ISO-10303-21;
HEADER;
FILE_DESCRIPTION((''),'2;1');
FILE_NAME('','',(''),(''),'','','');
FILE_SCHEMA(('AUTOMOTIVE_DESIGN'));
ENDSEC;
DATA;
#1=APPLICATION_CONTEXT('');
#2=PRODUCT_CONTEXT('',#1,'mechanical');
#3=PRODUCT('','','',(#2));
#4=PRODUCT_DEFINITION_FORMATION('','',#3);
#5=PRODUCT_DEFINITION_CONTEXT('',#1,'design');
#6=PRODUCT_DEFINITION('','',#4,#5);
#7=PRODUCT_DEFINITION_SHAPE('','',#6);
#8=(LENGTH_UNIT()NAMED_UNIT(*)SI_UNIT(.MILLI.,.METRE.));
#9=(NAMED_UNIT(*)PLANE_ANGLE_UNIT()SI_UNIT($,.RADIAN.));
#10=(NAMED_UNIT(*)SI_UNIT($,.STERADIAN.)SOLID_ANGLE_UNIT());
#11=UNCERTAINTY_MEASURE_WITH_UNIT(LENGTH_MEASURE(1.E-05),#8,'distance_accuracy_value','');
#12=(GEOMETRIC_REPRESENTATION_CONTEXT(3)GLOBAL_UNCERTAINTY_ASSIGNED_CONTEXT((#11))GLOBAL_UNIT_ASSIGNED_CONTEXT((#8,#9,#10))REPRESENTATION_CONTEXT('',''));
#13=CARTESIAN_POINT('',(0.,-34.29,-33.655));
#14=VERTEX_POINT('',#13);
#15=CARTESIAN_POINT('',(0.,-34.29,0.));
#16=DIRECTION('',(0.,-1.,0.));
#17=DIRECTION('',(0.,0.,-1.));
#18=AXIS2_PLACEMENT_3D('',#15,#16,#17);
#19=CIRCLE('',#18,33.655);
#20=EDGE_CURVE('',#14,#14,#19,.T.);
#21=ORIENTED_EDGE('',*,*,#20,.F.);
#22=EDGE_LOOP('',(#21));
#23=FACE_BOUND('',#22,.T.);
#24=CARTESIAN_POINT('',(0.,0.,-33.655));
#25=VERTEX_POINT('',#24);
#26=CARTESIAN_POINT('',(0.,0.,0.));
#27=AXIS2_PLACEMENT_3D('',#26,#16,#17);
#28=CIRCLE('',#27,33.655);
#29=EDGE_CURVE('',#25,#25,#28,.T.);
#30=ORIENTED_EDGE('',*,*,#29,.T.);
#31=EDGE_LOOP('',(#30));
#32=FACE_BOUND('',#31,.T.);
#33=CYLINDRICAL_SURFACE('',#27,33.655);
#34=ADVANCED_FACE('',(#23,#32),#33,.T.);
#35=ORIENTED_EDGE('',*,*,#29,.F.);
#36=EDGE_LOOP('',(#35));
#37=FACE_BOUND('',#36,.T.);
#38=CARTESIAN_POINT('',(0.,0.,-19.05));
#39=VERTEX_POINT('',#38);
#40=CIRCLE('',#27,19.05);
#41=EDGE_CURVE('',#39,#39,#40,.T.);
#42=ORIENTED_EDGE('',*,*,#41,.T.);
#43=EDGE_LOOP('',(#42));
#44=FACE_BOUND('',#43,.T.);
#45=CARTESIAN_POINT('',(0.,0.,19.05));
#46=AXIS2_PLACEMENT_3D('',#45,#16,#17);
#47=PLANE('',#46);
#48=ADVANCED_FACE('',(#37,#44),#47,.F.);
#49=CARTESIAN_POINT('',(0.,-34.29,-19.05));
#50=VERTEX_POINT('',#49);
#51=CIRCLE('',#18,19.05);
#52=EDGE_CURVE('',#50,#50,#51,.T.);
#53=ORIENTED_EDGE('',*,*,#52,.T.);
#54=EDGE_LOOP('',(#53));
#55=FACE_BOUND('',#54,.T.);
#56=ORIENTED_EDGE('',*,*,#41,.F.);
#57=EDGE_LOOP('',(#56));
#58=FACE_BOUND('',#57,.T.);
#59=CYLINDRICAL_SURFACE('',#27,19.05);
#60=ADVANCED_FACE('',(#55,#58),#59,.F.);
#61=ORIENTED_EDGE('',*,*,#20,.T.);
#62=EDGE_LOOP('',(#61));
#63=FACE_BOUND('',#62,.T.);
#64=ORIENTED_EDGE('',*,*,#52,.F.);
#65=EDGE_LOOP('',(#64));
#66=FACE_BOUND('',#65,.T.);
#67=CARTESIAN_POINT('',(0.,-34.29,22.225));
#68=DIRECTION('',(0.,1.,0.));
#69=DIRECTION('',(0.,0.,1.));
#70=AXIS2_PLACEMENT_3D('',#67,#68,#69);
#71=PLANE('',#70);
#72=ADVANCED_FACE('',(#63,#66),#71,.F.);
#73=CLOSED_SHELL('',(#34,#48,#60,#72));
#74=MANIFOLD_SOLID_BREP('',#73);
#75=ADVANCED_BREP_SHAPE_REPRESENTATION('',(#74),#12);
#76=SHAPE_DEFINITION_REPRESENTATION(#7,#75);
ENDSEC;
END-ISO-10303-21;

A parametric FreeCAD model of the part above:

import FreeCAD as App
import Part
import Sketcher
Q = App.Units.Quantity


def add_polygon(sketch, points):
    """Adds a closed chain of lines whose ends are joined by coincident constraints."""
    first, n = sketch.GeometryCount, len(points)
    for a, b in zip(points, points[1:] + points[:1]):
        sketch.addGeometry(Part.LineSegment(App.Vector(*a, 0), App.Vector(*b, 0)), False)
    for i in range(n):
        sketch.addConstraint(Sketcher.Constraint("Coincident", first + i, 2, first + (i + 1) % n, 1))

doc = App.newDocument("Part")
body = doc.addObject("PartDesign::Body", "Body")

sketch1 = doc.addObject("Sketcher::SketchObject", "Sketch")
body.addObject(sketch1)
sketch1.AttachmentSupport = (doc.YZ_Plane, [""])
sketch1.MapMode = "FlatFace"
add_polygon(sketch1, [(-34, 19), (0, 19), (0, 34), (-34, 34)])
sketch1.addConstraint(Sketcher.Constraint("Horizontal", 0))
sketch1.addConstraint(Sketcher.Constraint("Vertical", 1))
sketch1.addConstraint(Sketcher.Constraint("Horizontal", 2))
sketch1.addConstraint(Sketcher.Constraint("Vertical", 3))
sketch1.addConstraint(Sketcher.Constraint("PointOnObject", 0, 2, -2))
sketch1.addConstraint(Sketcher.Constraint("DistanceX", 0, 1, 0, 2, Q("1.35 in")))
sketch1.addConstraint(Sketcher.Constraint("DistanceY", 1, 1, 1, 2, Q("0.575 in")))
sketch1.addConstraint(Sketcher.Constraint("DistanceY", -1, 1, 0, 2, Q("0.75 in")))
revolution = doc.addObject("PartDesign::Revolution", "Revolution")
body.addObject(revolution)
revolution.Profile = sketch1
revolution.ReferenceAxis = (sketch1, ["H_Axis"])
revolution.Angle = 360

doc.recompute()
